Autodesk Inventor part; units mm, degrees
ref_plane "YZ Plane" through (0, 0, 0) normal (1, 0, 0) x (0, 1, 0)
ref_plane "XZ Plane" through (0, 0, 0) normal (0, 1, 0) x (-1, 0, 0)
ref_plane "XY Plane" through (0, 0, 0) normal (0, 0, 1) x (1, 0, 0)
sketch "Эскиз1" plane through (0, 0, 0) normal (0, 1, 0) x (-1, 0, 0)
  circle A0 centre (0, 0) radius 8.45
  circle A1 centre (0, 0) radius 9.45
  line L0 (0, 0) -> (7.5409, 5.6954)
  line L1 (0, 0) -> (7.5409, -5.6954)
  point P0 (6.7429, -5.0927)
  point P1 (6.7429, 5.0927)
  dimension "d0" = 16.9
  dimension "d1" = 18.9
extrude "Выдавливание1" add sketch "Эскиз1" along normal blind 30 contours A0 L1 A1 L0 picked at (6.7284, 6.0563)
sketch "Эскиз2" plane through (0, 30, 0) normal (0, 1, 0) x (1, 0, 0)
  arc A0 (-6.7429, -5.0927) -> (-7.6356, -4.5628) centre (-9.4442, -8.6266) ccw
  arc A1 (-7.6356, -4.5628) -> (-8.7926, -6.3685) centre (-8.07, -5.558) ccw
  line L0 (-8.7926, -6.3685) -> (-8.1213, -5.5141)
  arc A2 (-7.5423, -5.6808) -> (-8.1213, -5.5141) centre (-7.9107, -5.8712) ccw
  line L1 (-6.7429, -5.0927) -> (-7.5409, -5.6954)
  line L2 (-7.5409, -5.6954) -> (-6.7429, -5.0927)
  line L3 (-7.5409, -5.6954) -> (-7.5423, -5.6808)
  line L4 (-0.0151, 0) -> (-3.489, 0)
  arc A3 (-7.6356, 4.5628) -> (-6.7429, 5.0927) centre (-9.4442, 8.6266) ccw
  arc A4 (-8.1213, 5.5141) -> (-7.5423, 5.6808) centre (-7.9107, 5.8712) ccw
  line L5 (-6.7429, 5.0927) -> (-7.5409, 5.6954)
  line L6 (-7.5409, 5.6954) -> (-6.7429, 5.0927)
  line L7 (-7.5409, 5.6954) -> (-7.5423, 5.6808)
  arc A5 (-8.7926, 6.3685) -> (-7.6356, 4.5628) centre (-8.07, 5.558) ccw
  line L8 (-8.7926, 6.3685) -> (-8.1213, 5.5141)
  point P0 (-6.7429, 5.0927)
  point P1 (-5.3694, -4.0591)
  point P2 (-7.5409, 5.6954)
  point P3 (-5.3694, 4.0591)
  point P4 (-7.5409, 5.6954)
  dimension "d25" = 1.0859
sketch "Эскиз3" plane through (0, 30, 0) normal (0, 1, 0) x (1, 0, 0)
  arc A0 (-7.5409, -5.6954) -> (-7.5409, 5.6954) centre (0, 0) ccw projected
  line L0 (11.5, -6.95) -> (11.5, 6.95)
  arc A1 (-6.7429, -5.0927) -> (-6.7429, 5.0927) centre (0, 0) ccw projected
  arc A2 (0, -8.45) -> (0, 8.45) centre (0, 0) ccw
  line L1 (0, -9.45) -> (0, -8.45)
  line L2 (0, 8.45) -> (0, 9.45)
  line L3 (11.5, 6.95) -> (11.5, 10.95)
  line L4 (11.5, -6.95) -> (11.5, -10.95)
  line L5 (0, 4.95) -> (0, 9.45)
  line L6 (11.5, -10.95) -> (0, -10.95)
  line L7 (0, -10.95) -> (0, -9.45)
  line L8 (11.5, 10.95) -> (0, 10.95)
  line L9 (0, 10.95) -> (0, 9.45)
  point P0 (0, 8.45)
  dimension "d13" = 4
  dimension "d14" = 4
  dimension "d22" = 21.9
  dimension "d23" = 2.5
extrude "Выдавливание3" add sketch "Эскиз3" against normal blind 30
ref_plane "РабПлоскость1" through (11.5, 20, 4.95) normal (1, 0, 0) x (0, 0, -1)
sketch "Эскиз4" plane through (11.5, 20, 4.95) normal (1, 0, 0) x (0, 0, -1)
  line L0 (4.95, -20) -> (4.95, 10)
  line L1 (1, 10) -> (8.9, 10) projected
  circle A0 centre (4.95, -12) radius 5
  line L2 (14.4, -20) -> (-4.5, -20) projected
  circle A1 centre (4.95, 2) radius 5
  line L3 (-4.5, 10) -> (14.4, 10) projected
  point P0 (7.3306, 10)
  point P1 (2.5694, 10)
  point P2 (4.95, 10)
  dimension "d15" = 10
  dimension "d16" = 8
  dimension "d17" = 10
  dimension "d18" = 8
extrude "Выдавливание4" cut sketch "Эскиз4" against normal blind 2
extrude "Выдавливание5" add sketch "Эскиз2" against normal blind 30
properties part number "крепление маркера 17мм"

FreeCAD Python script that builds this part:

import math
import FreeCAD as App
import Part
import Sketcher

V = App.Vector

doc = App.newDocument("Part")
body = doc.addObject("PartDesign::Body", "Body")

# Sketch on XZ plane
sketch1 = body.newObject("Sketcher::SketchObject", "Sketch")
sketch1.AttachmentSupport = (doc.getObject("XZ_Plane"), [""])
sketch1.MapMode = "FlatFace"
sketch1.addGeometry(Part.ArcOfCircle(Part.Circle(V(0, 0, 0), V(0, 0, 1), 8.4), math.radians(-143), math.radians(143)), False)
sketch1.addGeometry(Part.LineSegment(V(-6.7, 5.1, 0), V(-7.5, 5.7, 0)), False)
sketch1.addGeometry(Part.ArcOfCircle(Part.Circle(V(0, 0, 0), V(0, 0, 1), 9.4), math.radians(-143), math.radians(143)), False)
sketch1.addGeometry(Part.LineSegment(V(-7.5, -5.7, 0), V(-6.7, -5.1, 0)), False)
sketch1.addConstraint(Sketcher.Constraint("Coincident", 0, 2, 1, 1))
sketch1.addConstraint(Sketcher.Constraint("Coincident", 1, 2, 2, 2))
sketch1.addConstraint(Sketcher.Constraint("Coincident", 2, 1, 3, 1))
sketch1.addConstraint(Sketcher.Constraint("Coincident", 3, 2, 0, 1))
sketch1.addConstraint(Sketcher.Constraint("Coincident", 0, 3, -1, 1))
sketch1.addConstraint(Sketcher.Constraint("Coincident", 2, 3, -1, 1))
sketch1.addConstraint(Sketcher.Constraint("Vertical", 1, 2, 2, 1))
sketch1.addConstraint(Sketcher.Constraint("Vertical", 0, 2, 3, 2))
sketch1.addConstraint(Sketcher.Constraint("Radius", 0, 8.45))
sketch1.addConstraint(Sketcher.Constraint("Radius", 2, 9.45))
sketch1.addConstraint(Sketcher.Constraint("DistanceX", 0, 2, -1, 1, 6.743))
sketch1.addConstraint(Sketcher.Constraint("DistanceX", 1, 2, -1, 1, 7.541))
pad1 = body.newObject("PartDesign::Pad", "Pad")
pad1.Profile = sketch1
pad1.Length = 30
pad1.Reversed = True

# Sketch on XZ plane
sketch2 = body.newObject("Sketcher::SketchObject", "Sketch001")
sketch2.AttachmentSupport = (doc.getObject("XZ_Plane"), [""])
sketch2.MapMode = "FlatFace"
sketch2.AttachmentOffset = App.Placement(V(0, 0, -30), App.Rotation())
sketch2.addGeometry(Part.LineSegment(V(0, 8.4, 0), V(0, 10.9, 0)), False)
sketch2.addGeometry(Part.LineSegment(V(0, 10.9, 0), V(11.5, 10.9, 0)), False)
sketch2.addGeometry(Part.LineSegment(V(11.5, 10.9, 0), V(11.5, -10.9, 0)), False)
sketch2.addGeometry(Part.LineSegment(V(11.5, -10.9, 0), V(0, -10.9, 0)), False)
sketch2.addGeometry(Part.LineSegment(V(0, -10.9, 0), V(0, -8.4, 0)), False)
sketch2.addGeometry(Part.ArcOfCircle(Part.Circle(V(0, 0, 0), V(0, 0, 1), 8.4), math.radians(-90), math.radians(90)), False)
sketch2.addConstraint(Sketcher.Constraint("Coincident", 0, 2, 1, 1))
sketch2.addConstraint(Sketcher.Constraint("Coincident", 1, 2, 2, 1))
sketch2.addConstraint(Sketcher.Constraint("Coincident", 2, 2, 3, 1))
sketch2.addConstraint(Sketcher.Constraint("Coincident", 3, 2, 4, 1))
sketch2.addConstraint(Sketcher.Constraint("Coincident", 4, 2, 5, 1))
sketch2.addConstraint(Sketcher.Constraint("Coincident", 5, 2, 0, 1))
sketch2.addConstraint(Sketcher.Constraint("Vertical", 0))
sketch2.addConstraint(Sketcher.Constraint("Horizontal", 1))
sketch2.addConstraint(Sketcher.Constraint("Vertical", 2))
sketch2.addConstraint(Sketcher.Constraint("Horizontal", 3))
sketch2.addConstraint(Sketcher.Constraint("Vertical", 4))
sketch2.addConstraint(Sketcher.Constraint("Coincident", 5, 3, -1, 1))
sketch2.addConstraint(Sketcher.Constraint("Symmetric", 0, 2, 3, 2, -1, 1))
sketch2.addConstraint(Sketcher.Constraint("PointOnObject", 0, 2, -2))
sketch2.addConstraint(Sketcher.Constraint("DistanceY", 0, 1, 0, 2, 2.5))
sketch2.addConstraint(Sketcher.Constraint("DistanceY", 2, 2, 2, 1, 21.9))
sketch2.addConstraint(Sketcher.Constraint("DistanceX", 1, 1, 1, 2, 11.5))
pad2 = body.newObject("PartDesign::Pad", "Pad001")
pad2.Profile = sketch2
pad2.Length = 30

# Sketch on YZ plane
sketch3 = body.newObject("Sketcher::SketchObject", "Sketch002")
sketch3.AttachmentSupport = (doc.getObject("YZ_Plane"), [""])
sketch3.MapMode = "FlatFace"
sketch3.AttachmentOffset = App.Placement(V(0, 0, 11.5), App.Rotation())
sketch3.addGeometry(Part.Circle(V(8, 0, 0), V(0, 0, 1), 5), False)
sketch3.addGeometry(Part.Circle(V(22, 0, 0), V(0, 0, 1), 5), False)
sketch3.addConstraint(Sketcher.Constraint("Equal", 0, 1))
sketch3.addConstraint(Sketcher.Constraint("PointOnObject", 0, 3, -1))
sketch3.addConstraint(Sketcher.Constraint("PointOnObject", 1, 3, -1))
sketch3.addConstraint(Sketcher.Constraint("Diameter", 0, 10.0))
sketch3.addConstraint(Sketcher.Constraint("DistanceX", -1, 1, 0, 3, 8.0))
sketch3.addConstraint(Sketcher.Constraint("DistanceX", -1, 1, 1, 3, 22.0))
pocket1 = body.newObject("PartDesign::Pocket", "Pocket")
pocket1.Profile = sketch3
pocket1.Length = 2

# Sketch on XZ plane
sketch4 = body.newObject("Sketcher::SketchObject", "Sketch003")
sketch4.AttachmentSupport = (doc.getObject("XZ_Plane"), [""])
sketch4.MapMode = "FlatFace"
sketch4.AttachmentOffset = App.Placement(V(0, 0, -30), App.Rotation())
sketch4.addGeometry(Part.LineSegment(V(-7.541, 5.695, 0), V(-6.743, 5.093, 0)), False)
sketch4.addGeometry(Part.ArcOfCircle(Part.Circle(V(-9.444, 8.627, 0), V(0, 0, 1), 4.448), math.radians(-66.01), math.radians(-52.61)), False)
sketch4.addGeometry(Part.ArcOfCircle(Part.Circle(V(-8.07, 5.558, 0), V(0, 0, 1), 1.086), math.radians(132), math.radians(294)), False)
sketch4.addGeometry(Part.LineSegment(V(-8.793, 6.369, 0), V(-8.121, 5.514, 0)), False)
sketch4.addGeometry(Part.ArcOfCircle(Part.Circle(V(-7.911, 5.871, 0), V(0, 0, 1), 0.415), math.radians(-121), math.radians(-27)), False)
sketch4.addGeometry(Part.LineSegment(V(-7.542, 5.681, 0), V(-7.541, 5.695, 0)), False)
sketch4.addGeometry(Part.ArcOfCircle(Part.Circle(V(-8.07, -5.558, 0), V(0, 0, 1), 1.086), math.radians(66), math.radians(228)), False)
sketch4.addGeometry(Part.ArcOfCircle(Part.Circle(V(-9.444, -8.627, 0), V(0, 0, 1), 4.448), math.radians(52.61), math.radians(66.01)), False)
sketch4.addGeometry(Part.LineSegment(V(-6.743, -5.093, 0), V(-7.541, -5.695, 0)), False)
sketch4.addGeometry(Part.LineSegment(V(-7.541, -5.695, 0), V(-7.542, -5.681, 0)), False)
sketch4.addGeometry(Part.ArcOfCircle(Part.Circle(V(-7.911, -5.871, 0), V(0, 0, 1), 0.415), math.radians(27), math.radians(121)), False)
sketch4.addGeometry(Part.LineSegment(V(-8.121, -5.514, 0), V(-8.793, -6.369, 0)), False)
sketch4.addConstraint(Sketcher.Constraint("Coincident", 0, 2, 1, 2))
sketch4.addConstraint(Sketcher.Constraint("Coincident", 1, 1, 2, 2))
sketch4.addConstraint(Sketcher.Constraint("Coincident", 2, 1, 3, 1))
sketch4.addConstraint(Sketcher.Constraint("Coincident", 3, 2, 4, 1))
sketch4.addConstraint(Sketcher.Constraint("Coincident", 4, 2, 5, 1))
sketch4.addConstraint(Sketcher.Constraint("Coincident", 5, 2, 0, 1))
sketch4.addConstraint(Sketcher.Constraint("Coincident", 6, 1, 7, 2))
sketch4.addConstraint(Sketcher.Constraint("Coincident", 7, 1, 8, 1))
sketch4.addConstraint(Sketcher.Constraint("Coincident", 8, 2, 9, 1))
sketch4.addConstraint(Sketcher.Constraint("Coincident", 9, 2, 10, 1))
sketch4.addConstraint(Sketcher.Constraint("Coincident", 10, 2, 11, 1))
sketch4.addConstraint(Sketcher.Constraint("Coincident", 11, 2, 6, 2))
sketch4.addConstraint(Sketcher.Constraint("Equal", 2, 6))
sketch4.addConstraint(Sketcher.Constraint("Equal", 1, 7))
sketch4.addConstraint(Sketcher.Constraint("Equal", 4, 10))
sketch4.addConstraint(Sketcher.Constraint("Symmetric", 2, 3, 6, 3, -1))
sketch4.addConstraint(Sketcher.Constraint("Symmetric", 1, 3, 7, 3, -1))
sketch4.addConstraint(Sketcher.Constraint("Symmetric", 4, 3, 10, 3, -1))
sketch4.addConstraint(Sketcher.Constraint("Symmetric", 5, 2, 8, 2, -1))
sketch4.addConstraint(Sketcher.Constraint("Vertical", 0, 2, 7, 1))
sketch4.addConstraint(Sketcher.Constraint("Vertical", 4, 2, 9, 2))
sketch4.addConstraint(Sketcher.Constraint("Vertical", 3, 2, 10, 2))
sketch4.addConstraint(Sketcher.Constraint("Vertical", 2, 1, 11, 2))
sketch4.addConstraint(Sketcher.Constraint("Radius", 2, 1.0859))
sketch4.addConstraint(Sketcher.Constraint("Distance", 0, 1.0))
sketch4.addConstraint(Sketcher.Constraint("Radius", 1, 4.448))
sketch4.addConstraint(Sketcher.Constraint("Radius", 4, 0.4147))
sketch4.addConstraint(Sketcher.Constraint("DistanceX", 2, 3, -1, 1, 8.07))
sketch4.addConstraint(Sketcher.Constraint("DistanceY", 1, 1, 0, 2, 0.53))
sketch4.addConstraint(Sketcher.Constraint("DistanceY", -1, 1, 2, 3, 5.558))
sketch4.addConstraint(Sketcher.Constraint("DistanceX", 0, 2, -1, 1, 6.743))
sketch4.addConstraint(Sketcher.Constraint("DistanceY", -1, 1, 3, 2, 5.514))
sketch4.addConstraint(Sketcher.Constraint("DistanceX", 5, 2, -1, 1, 7.541))
sketch4.addConstraint(Sketcher.Constraint("DistanceY", 0, 2, 1, 3, 3.534))
sketch4.addConstraint(Sketcher.Constraint("DistanceY", 10, 3, 0, 2, 10.964))
sketch4.addConstraint(Sketcher.Constraint("DistanceX", 4, 3, 1, 1, 0.275))
sketch4.addConstraint(Sketcher.Constraint("DistanceX", 2, 1, 4, 3, 0.882))
sketch4.addConstraint(Sketcher.Constraint("DistanceX", 3, 2, 4, 2, 0.579))
pad3 = body.newObject("PartDesign::Pad", "Pad002")
pad3.Profile = sketch4
pad3.Length = 30

doc.recompute()
